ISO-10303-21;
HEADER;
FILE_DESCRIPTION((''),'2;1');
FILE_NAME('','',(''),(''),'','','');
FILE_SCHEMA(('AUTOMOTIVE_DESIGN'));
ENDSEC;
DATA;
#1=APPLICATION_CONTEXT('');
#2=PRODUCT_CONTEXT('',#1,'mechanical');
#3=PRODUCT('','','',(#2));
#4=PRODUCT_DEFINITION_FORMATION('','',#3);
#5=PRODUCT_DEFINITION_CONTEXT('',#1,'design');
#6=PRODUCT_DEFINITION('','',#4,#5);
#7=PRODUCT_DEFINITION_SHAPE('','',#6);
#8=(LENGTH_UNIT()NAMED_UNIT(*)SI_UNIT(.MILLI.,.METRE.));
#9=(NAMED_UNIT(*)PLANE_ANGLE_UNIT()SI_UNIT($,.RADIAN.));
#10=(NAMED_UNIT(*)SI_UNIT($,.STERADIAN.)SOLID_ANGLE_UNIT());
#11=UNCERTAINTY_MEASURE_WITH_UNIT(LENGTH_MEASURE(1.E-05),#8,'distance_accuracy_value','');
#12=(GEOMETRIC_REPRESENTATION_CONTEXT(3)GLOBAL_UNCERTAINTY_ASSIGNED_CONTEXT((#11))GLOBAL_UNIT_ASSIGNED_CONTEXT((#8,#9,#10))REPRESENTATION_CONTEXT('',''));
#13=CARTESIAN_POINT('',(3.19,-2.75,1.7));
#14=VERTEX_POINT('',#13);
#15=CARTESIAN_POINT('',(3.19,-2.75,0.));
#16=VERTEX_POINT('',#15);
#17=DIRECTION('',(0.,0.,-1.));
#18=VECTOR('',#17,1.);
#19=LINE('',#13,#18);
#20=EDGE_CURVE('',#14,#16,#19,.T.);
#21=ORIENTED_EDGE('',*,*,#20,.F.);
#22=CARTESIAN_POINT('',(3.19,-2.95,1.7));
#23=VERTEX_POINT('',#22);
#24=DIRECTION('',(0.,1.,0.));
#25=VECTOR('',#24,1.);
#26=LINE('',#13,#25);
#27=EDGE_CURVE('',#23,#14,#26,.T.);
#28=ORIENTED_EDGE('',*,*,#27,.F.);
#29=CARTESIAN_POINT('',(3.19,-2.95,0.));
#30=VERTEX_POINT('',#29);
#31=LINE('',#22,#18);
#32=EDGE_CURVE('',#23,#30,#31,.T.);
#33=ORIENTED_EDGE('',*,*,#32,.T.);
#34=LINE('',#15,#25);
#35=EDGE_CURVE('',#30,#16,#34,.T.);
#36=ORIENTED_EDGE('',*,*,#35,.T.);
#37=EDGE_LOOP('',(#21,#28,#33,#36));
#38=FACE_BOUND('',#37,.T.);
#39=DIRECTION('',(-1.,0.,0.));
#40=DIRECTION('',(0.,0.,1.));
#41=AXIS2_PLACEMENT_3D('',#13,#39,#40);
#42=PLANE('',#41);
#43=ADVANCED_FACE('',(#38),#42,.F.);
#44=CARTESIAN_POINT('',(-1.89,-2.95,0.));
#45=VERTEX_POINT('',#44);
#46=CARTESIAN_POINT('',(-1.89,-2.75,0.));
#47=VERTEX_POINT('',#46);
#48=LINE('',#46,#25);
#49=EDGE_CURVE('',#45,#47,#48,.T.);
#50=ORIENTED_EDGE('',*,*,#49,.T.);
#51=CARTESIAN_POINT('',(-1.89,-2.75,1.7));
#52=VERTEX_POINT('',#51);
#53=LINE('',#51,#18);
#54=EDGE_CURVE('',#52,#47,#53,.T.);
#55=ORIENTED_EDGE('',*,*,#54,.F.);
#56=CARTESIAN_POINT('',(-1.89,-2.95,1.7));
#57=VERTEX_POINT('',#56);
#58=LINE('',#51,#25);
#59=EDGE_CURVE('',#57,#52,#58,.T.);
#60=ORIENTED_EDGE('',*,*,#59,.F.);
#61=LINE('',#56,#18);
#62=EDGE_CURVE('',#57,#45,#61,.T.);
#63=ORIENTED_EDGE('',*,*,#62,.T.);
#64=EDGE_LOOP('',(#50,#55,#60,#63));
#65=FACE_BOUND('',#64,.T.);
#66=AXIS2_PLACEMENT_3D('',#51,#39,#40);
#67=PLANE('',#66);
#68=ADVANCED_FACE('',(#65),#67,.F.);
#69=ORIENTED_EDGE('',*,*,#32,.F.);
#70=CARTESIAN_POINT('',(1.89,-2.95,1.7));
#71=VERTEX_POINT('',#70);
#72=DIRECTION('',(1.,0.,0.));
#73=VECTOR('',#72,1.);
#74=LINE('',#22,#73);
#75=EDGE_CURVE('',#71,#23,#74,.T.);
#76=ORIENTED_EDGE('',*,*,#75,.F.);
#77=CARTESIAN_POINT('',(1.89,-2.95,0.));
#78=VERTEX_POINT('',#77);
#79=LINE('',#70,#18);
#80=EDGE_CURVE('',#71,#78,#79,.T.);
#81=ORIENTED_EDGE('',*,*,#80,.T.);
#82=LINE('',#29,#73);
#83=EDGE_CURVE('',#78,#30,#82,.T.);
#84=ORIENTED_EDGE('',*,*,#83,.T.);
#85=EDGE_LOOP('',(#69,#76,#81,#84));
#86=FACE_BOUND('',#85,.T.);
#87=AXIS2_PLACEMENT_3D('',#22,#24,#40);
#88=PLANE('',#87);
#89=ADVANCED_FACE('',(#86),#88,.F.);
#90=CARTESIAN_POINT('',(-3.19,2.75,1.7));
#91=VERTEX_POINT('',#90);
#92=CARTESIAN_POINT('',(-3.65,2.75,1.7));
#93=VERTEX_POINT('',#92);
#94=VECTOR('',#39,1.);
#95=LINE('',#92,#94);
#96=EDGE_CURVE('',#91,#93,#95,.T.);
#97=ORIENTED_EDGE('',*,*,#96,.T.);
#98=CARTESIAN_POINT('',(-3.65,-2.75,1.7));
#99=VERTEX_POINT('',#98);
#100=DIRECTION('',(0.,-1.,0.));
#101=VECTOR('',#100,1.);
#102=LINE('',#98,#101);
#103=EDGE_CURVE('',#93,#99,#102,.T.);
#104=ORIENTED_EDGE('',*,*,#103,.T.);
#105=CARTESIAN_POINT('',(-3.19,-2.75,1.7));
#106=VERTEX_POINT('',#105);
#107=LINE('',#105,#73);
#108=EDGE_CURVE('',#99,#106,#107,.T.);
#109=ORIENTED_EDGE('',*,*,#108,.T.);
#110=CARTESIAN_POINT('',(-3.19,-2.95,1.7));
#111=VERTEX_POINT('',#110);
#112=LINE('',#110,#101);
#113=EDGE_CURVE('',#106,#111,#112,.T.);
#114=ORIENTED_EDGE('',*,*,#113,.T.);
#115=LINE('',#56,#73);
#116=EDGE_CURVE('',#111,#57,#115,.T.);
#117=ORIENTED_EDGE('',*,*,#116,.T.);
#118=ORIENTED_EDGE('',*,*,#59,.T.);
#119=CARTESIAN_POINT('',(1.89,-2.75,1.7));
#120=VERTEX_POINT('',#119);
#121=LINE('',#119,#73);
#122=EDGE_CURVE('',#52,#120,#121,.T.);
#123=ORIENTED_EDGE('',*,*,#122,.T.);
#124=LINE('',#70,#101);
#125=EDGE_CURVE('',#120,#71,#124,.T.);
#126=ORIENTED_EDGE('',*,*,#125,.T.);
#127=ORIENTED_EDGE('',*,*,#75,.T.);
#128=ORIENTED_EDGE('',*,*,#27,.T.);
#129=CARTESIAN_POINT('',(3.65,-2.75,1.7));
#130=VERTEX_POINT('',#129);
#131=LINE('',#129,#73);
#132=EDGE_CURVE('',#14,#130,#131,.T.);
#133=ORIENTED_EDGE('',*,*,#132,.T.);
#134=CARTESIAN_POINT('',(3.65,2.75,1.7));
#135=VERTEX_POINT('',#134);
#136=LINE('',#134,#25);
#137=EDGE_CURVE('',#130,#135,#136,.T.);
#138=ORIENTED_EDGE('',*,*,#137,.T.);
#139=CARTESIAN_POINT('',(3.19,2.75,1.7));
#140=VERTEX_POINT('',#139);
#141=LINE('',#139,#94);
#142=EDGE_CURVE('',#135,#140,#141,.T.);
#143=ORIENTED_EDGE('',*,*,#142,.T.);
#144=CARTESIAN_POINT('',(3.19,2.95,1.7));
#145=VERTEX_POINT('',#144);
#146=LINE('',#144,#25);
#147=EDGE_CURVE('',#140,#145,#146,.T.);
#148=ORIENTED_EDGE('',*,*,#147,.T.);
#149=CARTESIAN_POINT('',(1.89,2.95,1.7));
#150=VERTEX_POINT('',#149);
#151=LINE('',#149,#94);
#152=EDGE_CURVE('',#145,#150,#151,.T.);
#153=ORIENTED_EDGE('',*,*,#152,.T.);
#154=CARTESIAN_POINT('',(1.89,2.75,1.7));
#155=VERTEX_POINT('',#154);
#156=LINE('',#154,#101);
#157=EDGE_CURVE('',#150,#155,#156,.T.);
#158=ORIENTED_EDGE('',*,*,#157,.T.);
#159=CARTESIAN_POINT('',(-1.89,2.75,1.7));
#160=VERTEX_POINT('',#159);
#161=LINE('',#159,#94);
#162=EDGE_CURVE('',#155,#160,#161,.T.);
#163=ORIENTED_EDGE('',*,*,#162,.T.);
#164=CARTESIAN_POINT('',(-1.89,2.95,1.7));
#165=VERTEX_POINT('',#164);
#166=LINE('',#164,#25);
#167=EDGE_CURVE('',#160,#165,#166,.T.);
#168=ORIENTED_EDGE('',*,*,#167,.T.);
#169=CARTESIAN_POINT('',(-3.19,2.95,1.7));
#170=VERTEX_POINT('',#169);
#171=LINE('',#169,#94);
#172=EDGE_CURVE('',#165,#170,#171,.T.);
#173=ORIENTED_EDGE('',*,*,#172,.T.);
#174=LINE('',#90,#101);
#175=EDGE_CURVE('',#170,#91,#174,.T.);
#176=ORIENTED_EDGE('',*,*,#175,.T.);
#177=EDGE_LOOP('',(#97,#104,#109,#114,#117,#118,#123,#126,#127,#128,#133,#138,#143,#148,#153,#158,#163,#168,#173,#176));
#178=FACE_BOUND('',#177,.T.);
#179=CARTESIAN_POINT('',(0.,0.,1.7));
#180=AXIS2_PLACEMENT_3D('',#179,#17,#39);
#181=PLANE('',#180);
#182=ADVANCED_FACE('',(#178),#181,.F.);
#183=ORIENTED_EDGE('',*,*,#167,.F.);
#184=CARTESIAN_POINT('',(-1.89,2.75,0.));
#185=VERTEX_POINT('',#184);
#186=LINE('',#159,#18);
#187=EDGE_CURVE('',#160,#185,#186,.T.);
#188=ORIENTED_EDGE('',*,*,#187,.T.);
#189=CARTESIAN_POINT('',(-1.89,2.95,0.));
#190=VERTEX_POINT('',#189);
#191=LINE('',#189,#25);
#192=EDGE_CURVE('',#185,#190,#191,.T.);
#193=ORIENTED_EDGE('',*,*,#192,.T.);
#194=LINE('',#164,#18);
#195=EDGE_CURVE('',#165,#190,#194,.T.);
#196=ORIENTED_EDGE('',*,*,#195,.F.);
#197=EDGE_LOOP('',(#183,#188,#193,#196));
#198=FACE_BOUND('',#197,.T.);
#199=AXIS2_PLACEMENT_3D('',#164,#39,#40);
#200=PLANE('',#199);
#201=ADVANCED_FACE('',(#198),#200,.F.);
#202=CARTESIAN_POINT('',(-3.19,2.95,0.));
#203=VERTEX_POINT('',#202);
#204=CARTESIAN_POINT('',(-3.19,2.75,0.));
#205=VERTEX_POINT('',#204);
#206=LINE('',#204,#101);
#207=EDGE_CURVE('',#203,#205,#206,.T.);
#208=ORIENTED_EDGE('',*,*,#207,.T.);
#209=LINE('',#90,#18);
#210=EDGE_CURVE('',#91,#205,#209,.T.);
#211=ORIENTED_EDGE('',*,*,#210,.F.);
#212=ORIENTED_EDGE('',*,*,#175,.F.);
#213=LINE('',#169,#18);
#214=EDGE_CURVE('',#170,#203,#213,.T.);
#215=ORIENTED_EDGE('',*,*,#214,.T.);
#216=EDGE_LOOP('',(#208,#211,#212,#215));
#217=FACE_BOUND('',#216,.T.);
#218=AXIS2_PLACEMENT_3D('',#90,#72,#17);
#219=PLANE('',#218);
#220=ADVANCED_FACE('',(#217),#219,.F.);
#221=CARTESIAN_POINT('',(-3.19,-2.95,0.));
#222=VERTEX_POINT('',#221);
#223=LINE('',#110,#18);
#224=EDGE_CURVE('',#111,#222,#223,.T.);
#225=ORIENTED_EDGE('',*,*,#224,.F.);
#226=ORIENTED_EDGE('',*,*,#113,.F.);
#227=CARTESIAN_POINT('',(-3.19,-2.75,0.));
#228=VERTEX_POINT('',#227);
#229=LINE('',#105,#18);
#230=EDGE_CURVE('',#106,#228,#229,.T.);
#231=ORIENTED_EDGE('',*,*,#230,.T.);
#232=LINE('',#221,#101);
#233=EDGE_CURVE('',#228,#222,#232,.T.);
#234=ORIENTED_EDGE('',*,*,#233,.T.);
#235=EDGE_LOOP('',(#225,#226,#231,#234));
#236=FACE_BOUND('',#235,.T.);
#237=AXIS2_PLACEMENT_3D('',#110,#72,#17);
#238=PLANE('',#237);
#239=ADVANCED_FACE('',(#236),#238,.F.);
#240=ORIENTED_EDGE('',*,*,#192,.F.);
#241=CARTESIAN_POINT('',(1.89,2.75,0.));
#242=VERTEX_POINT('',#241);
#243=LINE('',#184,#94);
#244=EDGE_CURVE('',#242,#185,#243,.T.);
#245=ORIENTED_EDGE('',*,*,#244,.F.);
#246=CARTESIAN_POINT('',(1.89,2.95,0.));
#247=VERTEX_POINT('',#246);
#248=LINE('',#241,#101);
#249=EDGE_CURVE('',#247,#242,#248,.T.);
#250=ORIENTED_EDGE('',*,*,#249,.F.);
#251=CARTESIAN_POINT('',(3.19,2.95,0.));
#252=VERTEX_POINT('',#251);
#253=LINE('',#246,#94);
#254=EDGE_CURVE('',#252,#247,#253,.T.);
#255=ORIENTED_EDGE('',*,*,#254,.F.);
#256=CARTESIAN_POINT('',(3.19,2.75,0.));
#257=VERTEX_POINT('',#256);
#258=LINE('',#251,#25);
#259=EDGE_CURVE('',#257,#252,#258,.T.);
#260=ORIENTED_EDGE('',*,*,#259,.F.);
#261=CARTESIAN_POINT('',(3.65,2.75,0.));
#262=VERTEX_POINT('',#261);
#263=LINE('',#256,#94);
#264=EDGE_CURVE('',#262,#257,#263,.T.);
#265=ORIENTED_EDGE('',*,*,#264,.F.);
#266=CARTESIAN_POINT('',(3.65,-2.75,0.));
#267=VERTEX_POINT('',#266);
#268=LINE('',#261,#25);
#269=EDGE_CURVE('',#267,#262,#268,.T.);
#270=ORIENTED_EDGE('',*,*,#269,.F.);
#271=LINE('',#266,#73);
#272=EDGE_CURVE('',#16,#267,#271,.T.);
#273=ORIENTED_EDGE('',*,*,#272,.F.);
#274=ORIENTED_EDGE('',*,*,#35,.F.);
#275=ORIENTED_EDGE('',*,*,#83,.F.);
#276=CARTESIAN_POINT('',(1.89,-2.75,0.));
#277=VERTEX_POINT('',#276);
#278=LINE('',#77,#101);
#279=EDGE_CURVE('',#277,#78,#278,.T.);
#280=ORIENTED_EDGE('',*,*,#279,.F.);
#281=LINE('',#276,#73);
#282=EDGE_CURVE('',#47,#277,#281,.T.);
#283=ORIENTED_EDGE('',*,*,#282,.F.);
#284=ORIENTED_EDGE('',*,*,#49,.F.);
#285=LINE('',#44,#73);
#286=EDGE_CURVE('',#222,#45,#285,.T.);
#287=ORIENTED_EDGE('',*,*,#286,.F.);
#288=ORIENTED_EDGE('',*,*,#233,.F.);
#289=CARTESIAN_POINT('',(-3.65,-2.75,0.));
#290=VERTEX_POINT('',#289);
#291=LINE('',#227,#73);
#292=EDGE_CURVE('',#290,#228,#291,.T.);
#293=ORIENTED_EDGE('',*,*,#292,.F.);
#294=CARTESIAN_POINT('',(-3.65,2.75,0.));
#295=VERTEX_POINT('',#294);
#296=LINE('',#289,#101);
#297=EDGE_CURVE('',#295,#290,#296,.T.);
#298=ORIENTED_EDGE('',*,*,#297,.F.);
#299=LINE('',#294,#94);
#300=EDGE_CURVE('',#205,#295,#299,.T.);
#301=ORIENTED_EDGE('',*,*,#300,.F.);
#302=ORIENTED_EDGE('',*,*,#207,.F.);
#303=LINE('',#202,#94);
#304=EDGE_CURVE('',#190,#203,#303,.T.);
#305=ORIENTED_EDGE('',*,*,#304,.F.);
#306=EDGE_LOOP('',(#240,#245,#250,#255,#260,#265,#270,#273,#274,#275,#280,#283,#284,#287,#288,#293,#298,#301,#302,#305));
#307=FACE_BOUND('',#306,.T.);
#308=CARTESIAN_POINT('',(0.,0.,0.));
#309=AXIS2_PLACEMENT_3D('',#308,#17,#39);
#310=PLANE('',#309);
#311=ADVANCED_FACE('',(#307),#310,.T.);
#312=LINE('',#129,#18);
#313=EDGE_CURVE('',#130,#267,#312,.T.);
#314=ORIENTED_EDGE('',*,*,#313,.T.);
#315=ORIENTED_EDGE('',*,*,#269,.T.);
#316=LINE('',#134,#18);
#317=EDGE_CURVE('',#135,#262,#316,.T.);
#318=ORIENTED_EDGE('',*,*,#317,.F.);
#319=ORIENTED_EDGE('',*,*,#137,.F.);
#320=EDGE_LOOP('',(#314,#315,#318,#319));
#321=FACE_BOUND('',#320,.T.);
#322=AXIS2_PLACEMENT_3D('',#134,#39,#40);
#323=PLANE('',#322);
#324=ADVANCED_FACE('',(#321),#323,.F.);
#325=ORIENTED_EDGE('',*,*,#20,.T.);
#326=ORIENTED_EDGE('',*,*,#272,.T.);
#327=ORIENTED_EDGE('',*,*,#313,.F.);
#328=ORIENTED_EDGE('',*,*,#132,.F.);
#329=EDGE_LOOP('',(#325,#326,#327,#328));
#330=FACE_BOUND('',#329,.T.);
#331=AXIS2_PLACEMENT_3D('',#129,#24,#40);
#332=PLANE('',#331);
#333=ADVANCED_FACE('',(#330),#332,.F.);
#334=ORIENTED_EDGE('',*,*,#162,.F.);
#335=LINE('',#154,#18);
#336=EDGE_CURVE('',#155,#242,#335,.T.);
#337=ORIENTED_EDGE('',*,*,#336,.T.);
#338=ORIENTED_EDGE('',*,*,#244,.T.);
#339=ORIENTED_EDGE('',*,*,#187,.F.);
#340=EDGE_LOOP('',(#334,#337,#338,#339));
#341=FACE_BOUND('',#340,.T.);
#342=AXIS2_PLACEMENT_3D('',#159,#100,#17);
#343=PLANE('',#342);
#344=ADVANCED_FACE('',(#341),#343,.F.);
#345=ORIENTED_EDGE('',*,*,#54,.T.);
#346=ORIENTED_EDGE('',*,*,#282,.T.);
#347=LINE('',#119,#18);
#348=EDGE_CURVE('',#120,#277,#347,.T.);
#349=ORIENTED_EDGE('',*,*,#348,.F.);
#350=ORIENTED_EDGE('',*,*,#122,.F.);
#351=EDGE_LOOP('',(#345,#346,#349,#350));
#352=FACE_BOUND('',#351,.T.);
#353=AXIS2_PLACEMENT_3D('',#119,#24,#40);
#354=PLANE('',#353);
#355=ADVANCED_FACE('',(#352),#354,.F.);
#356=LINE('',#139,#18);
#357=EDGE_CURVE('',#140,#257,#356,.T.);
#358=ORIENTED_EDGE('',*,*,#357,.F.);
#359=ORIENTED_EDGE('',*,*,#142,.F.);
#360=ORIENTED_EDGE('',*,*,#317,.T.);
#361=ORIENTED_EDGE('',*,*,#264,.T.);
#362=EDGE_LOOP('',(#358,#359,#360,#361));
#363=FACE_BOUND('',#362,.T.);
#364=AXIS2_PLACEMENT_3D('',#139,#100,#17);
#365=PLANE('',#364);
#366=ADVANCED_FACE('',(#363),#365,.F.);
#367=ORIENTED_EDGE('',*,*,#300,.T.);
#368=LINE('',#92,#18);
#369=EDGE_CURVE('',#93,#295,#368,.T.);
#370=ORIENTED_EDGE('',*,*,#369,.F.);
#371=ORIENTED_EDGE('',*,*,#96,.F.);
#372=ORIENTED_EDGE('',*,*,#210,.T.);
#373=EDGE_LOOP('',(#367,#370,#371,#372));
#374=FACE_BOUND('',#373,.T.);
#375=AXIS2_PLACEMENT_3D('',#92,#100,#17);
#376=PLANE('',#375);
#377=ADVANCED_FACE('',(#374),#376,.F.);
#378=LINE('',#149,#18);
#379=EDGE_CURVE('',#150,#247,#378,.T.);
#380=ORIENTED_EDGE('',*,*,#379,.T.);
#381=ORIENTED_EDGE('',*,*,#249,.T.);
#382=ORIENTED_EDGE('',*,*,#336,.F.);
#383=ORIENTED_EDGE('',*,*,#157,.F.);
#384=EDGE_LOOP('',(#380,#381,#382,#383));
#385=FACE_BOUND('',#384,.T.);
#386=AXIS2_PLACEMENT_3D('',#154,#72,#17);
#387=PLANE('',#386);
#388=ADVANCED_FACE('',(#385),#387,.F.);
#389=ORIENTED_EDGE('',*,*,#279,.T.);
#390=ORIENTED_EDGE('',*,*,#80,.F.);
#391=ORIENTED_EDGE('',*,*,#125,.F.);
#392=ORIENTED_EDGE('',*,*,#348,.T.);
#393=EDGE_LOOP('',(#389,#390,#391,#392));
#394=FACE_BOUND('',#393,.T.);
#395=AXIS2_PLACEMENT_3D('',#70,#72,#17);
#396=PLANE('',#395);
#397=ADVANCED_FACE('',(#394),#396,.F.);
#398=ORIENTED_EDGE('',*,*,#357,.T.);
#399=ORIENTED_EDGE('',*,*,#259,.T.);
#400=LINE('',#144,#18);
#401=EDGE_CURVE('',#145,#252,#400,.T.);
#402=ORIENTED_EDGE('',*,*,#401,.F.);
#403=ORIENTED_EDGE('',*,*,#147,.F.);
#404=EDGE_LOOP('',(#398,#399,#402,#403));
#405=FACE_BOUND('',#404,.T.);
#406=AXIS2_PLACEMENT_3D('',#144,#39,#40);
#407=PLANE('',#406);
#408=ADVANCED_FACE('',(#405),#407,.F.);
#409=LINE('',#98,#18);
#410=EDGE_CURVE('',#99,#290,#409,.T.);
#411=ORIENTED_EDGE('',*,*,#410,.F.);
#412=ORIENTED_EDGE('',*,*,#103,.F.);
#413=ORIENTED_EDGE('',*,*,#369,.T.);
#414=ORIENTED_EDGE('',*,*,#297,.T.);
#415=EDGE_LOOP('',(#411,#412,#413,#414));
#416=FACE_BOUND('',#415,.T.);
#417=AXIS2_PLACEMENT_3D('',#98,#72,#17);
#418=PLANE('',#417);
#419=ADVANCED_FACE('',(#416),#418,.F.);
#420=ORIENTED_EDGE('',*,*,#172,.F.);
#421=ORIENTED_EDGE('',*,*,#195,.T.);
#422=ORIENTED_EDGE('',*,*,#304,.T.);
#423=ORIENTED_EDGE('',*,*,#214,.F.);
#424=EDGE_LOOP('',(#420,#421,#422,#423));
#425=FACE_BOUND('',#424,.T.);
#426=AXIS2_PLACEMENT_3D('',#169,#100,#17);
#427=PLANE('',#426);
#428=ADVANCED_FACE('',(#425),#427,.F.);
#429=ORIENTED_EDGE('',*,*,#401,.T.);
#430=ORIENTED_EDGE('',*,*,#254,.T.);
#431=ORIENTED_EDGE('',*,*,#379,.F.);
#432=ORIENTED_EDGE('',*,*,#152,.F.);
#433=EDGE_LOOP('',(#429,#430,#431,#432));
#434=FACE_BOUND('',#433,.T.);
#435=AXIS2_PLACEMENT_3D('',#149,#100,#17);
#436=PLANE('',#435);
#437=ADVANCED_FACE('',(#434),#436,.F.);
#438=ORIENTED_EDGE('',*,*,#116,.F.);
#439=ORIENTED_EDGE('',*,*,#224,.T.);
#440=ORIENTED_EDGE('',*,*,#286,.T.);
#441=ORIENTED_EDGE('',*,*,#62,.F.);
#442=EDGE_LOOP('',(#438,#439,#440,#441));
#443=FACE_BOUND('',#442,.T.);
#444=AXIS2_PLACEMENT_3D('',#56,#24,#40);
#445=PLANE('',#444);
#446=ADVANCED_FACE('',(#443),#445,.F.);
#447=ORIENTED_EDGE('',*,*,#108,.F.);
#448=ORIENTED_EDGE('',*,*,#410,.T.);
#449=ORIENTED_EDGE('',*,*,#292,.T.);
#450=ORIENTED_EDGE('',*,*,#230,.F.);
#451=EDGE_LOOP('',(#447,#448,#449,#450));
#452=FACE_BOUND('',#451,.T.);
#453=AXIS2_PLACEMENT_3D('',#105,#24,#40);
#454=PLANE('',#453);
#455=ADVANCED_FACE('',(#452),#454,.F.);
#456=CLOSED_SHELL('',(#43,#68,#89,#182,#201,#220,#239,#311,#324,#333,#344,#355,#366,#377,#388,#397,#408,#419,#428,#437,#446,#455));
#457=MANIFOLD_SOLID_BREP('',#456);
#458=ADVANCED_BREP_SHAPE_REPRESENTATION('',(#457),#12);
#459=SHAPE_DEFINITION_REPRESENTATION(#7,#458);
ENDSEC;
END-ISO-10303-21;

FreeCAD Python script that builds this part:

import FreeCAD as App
import Part
import Sketcher
from FreeCAD import Vector


def add_polygon(sketch, points):
    """Adds a closed chain of lines whose ends are joined by coincident constraints."""
    first, n = sketch.GeometryCount, len(points)
    for a, b in zip(points, points[1:] + points[:1]):
        sketch.addGeometry(Part.LineSegment(App.Vector(*a, 0), App.Vector(*b, 0)), False)
    for i in range(n):
        sketch.addConstraint(Sketcher.Constraint("Coincident", first + i, 2, first + (i + 1) % n, 1))

doc = App.newDocument("Part")
body = doc.addObject("PartDesign::Body", "Body")

sketch1 = doc.addObject("Sketcher::SketchObject", "Sketch")
body.addObject(sketch1)
sketch1.AttachmentSupport = (doc.XY_Plane, [""])
sketch1.MapMode = "FlatFace"
add_polygon(sketch1, [(3.19, 2.75), (3.19, 2.95), (1.89, 2.95), (1.89, 2.75), (-1.89, 2.75), (-1.89, 2.95), (-3.19, 2.95), (-3.19, 2.75), (-3.65, 2.75), (-3.65, -2.75), (-3.19, -2.75), (-3.19, -2.95), (-1.89, -2.95), (-1.89, -2.75), (1.89, -2.75), (1.89, -2.95), (3.19, -2.95), (3.19, -2.75), (3.65, -2.75), (3.65, 2.75)])
sketch1.addConstraint([
    Sketcher.Constraint("Vertical", 0),
    Sketcher.Constraint("Horizontal", 1),
    Sketcher.Constraint("Vertical", 2),
    Sketcher.Constraint("Horizontal", 3),
    Sketcher.Constraint("Vertical", 4),
    Sketcher.Constraint("Horizontal", 5),
    Sketcher.Constraint("Vertical", 6),
    Sketcher.Constraint("Horizontal", 7),
    Sketcher.Constraint("Vertical", 8),
    Sketcher.Constraint("Horizontal", 9),
    Sketcher.Constraint("Vertical", 10),
    Sketcher.Constraint("Horizontal", 11),
    Sketcher.Constraint("Vertical", 12),
    Sketcher.Constraint("Horizontal", 13),
    Sketcher.Constraint("Vertical", 14),
    Sketcher.Constraint("Horizontal", 15),
    Sketcher.Constraint("Vertical", 16),
    Sketcher.Constraint("Horizontal", 17),
    Sketcher.Constraint("Vertical", 18),
    Sketcher.Constraint("Horizontal", 19),
    Sketcher.Constraint("Symmetric", 0, 2, 10, 2, -1, 1),
    Sketcher.Constraint("Symmetric", 2, 2, 12, 2, -1, 1),
    Sketcher.Constraint("Symmetric", 4, 2, 14, 2, -1, 1),
    Sketcher.Constraint("Symmetric", 6, 2, 16, 2, -1, 1),
    Sketcher.Constraint("Symmetric", 8, 2, 18, 2, -1, 1),
    Sketcher.Constraint("Symmetric", 1, 2, 4, 2, -2),
    Sketcher.Constraint("Symmetric", 9, 2, 16, 2, -2),
    Sketcher.Constraint("Horizontal", 3, 2, 6, 2),
    Sketcher.Constraint("DistanceX", 1, 2, 1, 1, 1.3),
    Sketcher.Constraint("DistanceY", 0, 1, 0, 2, 0.2),
    Sketcher.Constraint("DistanceY", 8, 2, 8, 1, 5.5),
    Sketcher.Constraint("DistanceX", 3, 2, 3, 1, 3.78),
    Sketcher.Constraint("DistanceX", 7, 2, 7, 1, 0.46),
])
pad1 = doc.addObject("PartDesign::Pad", "Pad")
body.addObject(pad1)
pad1.Profile = sketch1
pad1.Length = 1.7

doc.recompute()
